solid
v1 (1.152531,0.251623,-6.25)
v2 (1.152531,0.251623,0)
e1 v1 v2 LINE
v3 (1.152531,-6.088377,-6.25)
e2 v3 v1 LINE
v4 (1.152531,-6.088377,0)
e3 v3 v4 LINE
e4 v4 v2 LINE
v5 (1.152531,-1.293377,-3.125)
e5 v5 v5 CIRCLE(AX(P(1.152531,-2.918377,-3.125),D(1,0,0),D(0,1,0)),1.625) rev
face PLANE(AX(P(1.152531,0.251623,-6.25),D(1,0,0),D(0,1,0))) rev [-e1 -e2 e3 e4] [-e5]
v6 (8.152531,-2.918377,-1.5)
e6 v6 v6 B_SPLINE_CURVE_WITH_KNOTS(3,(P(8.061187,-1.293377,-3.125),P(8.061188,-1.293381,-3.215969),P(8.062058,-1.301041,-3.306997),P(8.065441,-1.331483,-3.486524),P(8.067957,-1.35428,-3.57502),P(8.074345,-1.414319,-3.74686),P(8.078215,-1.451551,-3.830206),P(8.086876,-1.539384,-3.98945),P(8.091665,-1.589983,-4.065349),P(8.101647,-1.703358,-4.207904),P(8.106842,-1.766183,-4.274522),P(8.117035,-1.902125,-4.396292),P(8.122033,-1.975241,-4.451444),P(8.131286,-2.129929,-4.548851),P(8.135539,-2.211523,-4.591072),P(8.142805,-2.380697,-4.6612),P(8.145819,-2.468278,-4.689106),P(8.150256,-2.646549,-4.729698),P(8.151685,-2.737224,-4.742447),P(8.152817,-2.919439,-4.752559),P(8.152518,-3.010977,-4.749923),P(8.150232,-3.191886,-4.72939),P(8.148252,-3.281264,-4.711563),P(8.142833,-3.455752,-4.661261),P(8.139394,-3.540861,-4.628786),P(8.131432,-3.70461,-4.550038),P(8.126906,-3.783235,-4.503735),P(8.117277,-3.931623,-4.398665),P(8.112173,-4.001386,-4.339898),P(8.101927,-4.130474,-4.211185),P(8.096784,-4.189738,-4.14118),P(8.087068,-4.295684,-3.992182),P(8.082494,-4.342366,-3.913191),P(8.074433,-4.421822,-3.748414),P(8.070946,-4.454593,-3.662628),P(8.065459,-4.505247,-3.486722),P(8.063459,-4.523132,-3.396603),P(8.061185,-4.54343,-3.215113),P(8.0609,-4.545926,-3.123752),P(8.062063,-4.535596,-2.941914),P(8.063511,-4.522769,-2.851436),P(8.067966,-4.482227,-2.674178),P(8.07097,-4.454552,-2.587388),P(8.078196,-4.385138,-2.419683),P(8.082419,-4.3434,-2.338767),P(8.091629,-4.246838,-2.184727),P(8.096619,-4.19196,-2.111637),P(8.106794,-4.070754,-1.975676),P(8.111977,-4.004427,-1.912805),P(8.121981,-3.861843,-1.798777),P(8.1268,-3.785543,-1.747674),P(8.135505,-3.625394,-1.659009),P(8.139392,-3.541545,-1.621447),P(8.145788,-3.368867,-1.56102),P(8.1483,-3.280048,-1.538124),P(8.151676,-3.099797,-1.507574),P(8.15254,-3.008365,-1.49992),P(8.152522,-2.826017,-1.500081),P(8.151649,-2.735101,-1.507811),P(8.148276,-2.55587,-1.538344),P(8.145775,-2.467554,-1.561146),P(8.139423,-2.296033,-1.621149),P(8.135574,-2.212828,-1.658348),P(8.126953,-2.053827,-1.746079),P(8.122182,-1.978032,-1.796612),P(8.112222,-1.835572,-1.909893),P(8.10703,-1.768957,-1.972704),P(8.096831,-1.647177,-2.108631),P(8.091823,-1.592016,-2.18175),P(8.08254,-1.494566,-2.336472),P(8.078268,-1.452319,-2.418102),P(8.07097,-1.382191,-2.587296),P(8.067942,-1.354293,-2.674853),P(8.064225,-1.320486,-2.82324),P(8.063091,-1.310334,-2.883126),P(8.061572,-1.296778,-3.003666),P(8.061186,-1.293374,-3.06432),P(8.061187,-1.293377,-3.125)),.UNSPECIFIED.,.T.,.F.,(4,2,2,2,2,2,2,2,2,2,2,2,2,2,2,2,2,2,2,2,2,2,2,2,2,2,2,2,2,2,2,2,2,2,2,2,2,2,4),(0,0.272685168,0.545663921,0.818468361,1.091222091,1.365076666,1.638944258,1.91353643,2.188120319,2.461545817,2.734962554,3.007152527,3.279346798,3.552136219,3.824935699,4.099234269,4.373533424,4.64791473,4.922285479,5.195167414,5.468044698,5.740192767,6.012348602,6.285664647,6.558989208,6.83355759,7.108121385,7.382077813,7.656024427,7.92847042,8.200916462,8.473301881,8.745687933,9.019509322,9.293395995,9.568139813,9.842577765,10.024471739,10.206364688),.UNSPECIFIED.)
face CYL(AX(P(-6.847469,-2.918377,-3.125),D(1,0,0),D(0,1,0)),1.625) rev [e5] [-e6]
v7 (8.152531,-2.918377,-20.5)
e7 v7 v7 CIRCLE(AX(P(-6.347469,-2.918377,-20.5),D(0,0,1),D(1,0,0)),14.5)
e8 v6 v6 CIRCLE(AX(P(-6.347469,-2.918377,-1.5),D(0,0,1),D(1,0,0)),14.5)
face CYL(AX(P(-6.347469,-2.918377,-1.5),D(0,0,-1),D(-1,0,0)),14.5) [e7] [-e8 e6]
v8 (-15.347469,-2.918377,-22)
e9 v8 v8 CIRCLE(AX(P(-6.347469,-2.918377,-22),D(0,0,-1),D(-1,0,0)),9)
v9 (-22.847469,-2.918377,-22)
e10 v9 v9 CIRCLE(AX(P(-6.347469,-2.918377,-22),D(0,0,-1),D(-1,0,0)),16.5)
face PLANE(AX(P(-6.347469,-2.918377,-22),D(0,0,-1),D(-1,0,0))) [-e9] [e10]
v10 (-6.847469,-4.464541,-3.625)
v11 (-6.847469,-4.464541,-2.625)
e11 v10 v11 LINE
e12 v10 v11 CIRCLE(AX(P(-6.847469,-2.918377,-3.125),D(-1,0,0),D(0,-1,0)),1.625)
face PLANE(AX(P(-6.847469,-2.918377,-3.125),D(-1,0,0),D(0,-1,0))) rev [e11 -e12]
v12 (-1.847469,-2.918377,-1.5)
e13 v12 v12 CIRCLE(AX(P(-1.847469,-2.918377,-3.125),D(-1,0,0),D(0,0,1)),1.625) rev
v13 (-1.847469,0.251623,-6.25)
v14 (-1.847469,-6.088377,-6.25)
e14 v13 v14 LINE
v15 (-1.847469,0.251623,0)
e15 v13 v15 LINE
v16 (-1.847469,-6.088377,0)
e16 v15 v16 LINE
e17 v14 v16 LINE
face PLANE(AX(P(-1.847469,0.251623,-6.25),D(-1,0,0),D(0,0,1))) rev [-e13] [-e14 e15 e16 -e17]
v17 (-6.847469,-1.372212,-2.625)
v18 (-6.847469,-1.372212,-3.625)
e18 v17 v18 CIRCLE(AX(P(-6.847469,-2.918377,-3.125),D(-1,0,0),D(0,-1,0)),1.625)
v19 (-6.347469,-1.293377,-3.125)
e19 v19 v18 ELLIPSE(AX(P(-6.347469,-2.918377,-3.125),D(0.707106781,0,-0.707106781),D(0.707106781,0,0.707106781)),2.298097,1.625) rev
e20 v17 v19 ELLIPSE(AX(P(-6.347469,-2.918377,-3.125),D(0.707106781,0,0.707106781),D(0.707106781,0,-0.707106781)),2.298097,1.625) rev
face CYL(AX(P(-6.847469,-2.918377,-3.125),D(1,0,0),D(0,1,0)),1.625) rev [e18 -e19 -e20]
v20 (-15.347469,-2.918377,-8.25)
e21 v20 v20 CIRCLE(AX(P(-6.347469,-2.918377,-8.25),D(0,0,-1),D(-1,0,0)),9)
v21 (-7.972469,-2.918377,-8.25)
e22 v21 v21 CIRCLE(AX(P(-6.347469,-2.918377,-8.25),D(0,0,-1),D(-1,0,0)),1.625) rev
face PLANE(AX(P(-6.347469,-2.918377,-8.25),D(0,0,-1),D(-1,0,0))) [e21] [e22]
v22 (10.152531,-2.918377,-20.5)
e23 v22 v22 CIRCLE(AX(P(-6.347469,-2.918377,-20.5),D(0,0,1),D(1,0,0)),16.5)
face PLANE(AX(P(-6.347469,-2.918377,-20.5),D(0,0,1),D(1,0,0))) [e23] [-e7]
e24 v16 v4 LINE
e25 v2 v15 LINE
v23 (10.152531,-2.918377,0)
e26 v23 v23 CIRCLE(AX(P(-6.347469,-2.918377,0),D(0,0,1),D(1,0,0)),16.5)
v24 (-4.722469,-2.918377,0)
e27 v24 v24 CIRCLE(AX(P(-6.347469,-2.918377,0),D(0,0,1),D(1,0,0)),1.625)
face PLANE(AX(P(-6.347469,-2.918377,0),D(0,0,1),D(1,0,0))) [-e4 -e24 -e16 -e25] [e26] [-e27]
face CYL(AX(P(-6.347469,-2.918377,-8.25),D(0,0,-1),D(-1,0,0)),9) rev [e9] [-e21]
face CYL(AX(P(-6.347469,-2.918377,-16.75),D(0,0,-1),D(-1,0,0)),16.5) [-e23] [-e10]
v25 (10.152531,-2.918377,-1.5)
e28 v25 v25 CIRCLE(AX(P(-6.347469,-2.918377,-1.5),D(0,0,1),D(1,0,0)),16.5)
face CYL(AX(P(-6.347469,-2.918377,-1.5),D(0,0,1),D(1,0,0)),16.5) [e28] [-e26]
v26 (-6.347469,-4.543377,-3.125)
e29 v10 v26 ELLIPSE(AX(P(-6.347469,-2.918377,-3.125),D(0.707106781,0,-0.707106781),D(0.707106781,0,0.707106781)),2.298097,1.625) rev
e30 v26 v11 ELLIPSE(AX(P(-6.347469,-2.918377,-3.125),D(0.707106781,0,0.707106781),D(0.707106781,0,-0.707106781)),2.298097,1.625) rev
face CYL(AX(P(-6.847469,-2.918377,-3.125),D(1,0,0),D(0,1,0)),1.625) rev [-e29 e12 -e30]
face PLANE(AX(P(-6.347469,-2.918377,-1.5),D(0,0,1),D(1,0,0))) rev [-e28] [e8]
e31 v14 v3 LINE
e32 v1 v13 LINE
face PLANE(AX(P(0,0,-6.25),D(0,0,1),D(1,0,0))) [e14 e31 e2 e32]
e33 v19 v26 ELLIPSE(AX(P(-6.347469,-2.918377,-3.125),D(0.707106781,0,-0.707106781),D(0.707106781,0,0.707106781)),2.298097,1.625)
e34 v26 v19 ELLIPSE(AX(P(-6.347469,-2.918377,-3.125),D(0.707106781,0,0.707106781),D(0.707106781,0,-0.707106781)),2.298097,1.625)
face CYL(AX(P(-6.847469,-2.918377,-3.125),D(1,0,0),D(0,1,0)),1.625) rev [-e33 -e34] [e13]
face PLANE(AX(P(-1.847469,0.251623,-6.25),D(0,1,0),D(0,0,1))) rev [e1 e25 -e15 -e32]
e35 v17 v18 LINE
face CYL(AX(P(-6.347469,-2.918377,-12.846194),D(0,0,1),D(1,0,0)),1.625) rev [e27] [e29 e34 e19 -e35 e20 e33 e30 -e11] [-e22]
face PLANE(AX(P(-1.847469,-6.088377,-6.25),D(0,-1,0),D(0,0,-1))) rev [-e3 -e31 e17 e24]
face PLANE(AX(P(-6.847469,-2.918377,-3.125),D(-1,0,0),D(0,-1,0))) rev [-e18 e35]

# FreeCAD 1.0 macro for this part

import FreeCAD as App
import Part
import Sketcher
Q = App.Units.Quantity

doc = App.newDocument("Part")
body = doc.addObject("PartDesign::Body", "Body")

sketch1 = body.newObject("Sketcher::SketchObject", "Sketch")
sketch1.AttachmentSupport = (doc.getObject("XY_Plane"), [""])
sketch1.MapMode = "FlatFace"
sketch1.addGeometry([
    Part.Circle(App.Vector(-6.347469, -2.918377, 0), App.Vector(0, 0, 1), 15.5),
    Part.Circle(App.Vector(-6.347469, -2.918377, 0), App.Vector(0, 0, 1), 1.5),
], False)
sketch1.addConstraint([
    Sketcher.Constraint("Coincident", 1, 3, 0, 3),
    Sketcher.Constraint("Diameter", 0, Q("31 mm")),
    Sketcher.Constraint("Diameter", 1, Q("3 mm")),
    Sketcher.Constraint("DistanceX", 0, 3, -1, 1, Q("6.347469 mm")),
    Sketcher.Constraint("DistanceY", 0, 3, -1, 1, Q("2.918377 mm")),
])
pad1 = body.newObject("PartDesign::Pad", "Pad")
pad1.Profile = sketch1
pad1.Length = 18.25
pad1.Reversed = True

sketch2 = body.newObject("Sketcher::SketchObject", "Sketch001")
sketch2.AttachmentSupport = (doc.getObject("XY_Plane"), [""])
sketch2.MapMode = "FlatFace"
sketch2.AttachmentOffset = App.Placement(App.Vector(0, 0, -18.25), App.Rotation())
sketch2.addGeometry(Part.Circle(App.Vector(-6.347469, -2.918377, 0), App.Vector(0, 0, 1), 9), False)
sketch2.addConstraint([
    Sketcher.Constraint("Diameter", 0, Q("18 mm")),
    Sketcher.Constraint("DistanceX", 0, 3, -1, 1, Q("6.347469 mm")),
    Sketcher.Constraint("DistanceY", 0, 3, -1, 1, Q("2.918377 mm")),
])
pocket1 = body.newObject("PartDesign::Pocket", "Pocket")
pocket1.Profile = sketch2
pocket1.Length = 10
pocket1.Reversed = True

sketch3 = body.newObject("Sketcher::SketchObject", "Sketch002")
sketch3.AttachmentSupport = (doc.getObject("XY_Plane"), [""])
sketch3.MapMode = "FlatFace"
sketch3.addGeometry([
    Part.Circle(App.Vector(-6.347469, -2.918377, 0), App.Vector(0, 0, 1), 16.5),
    Part.Circle(App.Vector(-6.347469, -2.918377, 0), App.Vector(0, 0, 1), 15.5),
], False)
sketch3.addConstraint([
    Sketcher.Constraint("Coincident", 1, 3, 0, 3),
    Sketcher.Constraint("Diameter", 0, Q("33 mm")),
    Sketcher.Constraint("Diameter", 1, Q("31 mm")),
    Sketcher.Constraint("DistanceX", 0, 3, -1, 1, Q("6.347469 mm")),
    Sketcher.Constraint("DistanceY", 0, 3, -1, 1, Q("2.918377 mm")),
])
pad2 = body.newObject("PartDesign::Pad", "Pad001")
pad2.Profile = sketch3
pad2.Length = 1.5
pad2.Reversed = True

sketch4 = body.newObject("Sketcher::SketchObject", "Sketch003")
sketch4.AttachmentSupport = (doc.getObject("XY_Plane"), [""])
sketch4.MapMode = "FlatFace"
sketch4.AttachmentOffset = App.Placement(App.Vector(0, 0, -16.75), App.Rotation())
sketch4.addGeometry([
    Part.Circle(App.Vector(-6.347469, -2.918377, 0), App.Vector(0, 0, 1), 16.5),
    Part.Circle(App.Vector(-6.347469, -2.918377, 0), App.Vector(0, 0, 1), 15.5),
], False)
sketch4.addConstraint([
    Sketcher.Constraint("Coincident", 1, 3, 0, 3),
    Sketcher.Constraint("Diameter", 0, Q("33 mm")),
    Sketcher.Constraint("Diameter", 1, Q("31 mm")),
    Sketcher.Constraint("DistanceX", 0, 3, -1, 1, Q("6.347469 mm")),
    Sketcher.Constraint("DistanceY", 0, 3, -1, 1, Q("2.918377 mm")),
])
pad3 = body.newObject("PartDesign::Pad", "Pad002")
pad3.Profile = sketch4
pad3.Length = 1.5
pad3.Reversed = True

sketch5 = body.newObject("Sketcher::SketchObject", "Sketch004")
sketch5.AttachmentSupport = (doc.getObject("XY_Plane"), [""])
sketch5.MapMode = "FlatFace"
sketch5.addGeometry([
    Part.LineSegment(App.Vector(-1.847469, 0.251623, 0), App.Vector(-1.847469, -6.088377, 0)),
    Part.LineSegment(App.Vector(-1.847469, -6.088377, 0), App.Vector(1.152531, -6.088377, 0)),
    Part.LineSegment(App.Vector(1.152531, -6.088377, 0), App.Vector(1.152531, 0.251623, 0)),
    Part.LineSegment(App.Vector(1.152531, 0.251623, 0), App.Vector(-1.847469, 0.251623, 0)),
], False)
sketch5.addConstraint([
    Sketcher.Constraint("Coincident", 0, 2, 1, 1),
    Sketcher.Constraint("Coincident", 1, 2, 2, 1),
    Sketcher.Constraint("Coincident", 2, 2, 3, 1),
    Sketcher.Constraint("Coincident", 3, 2, 0, 1),
    Sketcher.Constraint("Vertical", 0),
    Sketcher.Constraint("Horizontal", 1),
    Sketcher.Constraint("Vertical", 2),
    Sketcher.Constraint("Horizontal", 3),
    Sketcher.Constraint("DistanceX", 1, 1, 1, 2, Q("3 mm")),
    Sketcher.Constraint("DistanceY", 0, 2, 0, 1, Q("6.34 mm")),
    Sketcher.Constraint("DistanceX", 0, 2, -1, 1, Q("1.847469 mm")),
    Sketcher.Constraint("DistanceY", 0, 2, -1, 1, Q("6.088377 mm")),
])
pocket2 = body.newObject("PartDesign::Pocket", "Pocket001")
pocket2.Profile = sketch5
pocket2.Length = 6.25

sketch6 = body.newObject("Sketcher::SketchObject", "Sketch005")
sketch6.AttachmentSupport = (doc.getObject("YZ_Plane"), [""])
sketch6.MapMode = "FlatFace"
sketch6.AttachmentOffset = App.Placement(App.Vector(0, 0, 1.152531), App.Rotation())
sketch6.addGeometry(Part.Circle(App.Vector(-2.918377, -3.125, 0), App.Vector(0, 0, 1), 1.625), False)
sketch6.addConstraint([
    Sketcher.Constraint("Diameter", 0, Q("3.25 mm")),
    Sketcher.Constraint("DistanceY", 0, 3, -1, 1, Q("3.125 mm")),
    Sketcher.Constraint("DistanceX", 0, 3, -1, 1, Q("2.918377 mm")),
])
pocket3 = body.newObject("PartDesign::Pocket", "Pocket002")
pocket3.Profile = sketch6
pocket3.Type = "TwoLengths"
pocket3.Length = 8
pocket3.Length2 = 9.75

sketch7 = body.newObject("Sketcher::SketchObject", "Sketch006")
sketch7.AttachmentSupport = (doc.getObject("XY_Plane"), [""])
sketch7.MapMode = "FlatFace"
sketch7.addGeometry(Part.Circle(App.Vector(-6.347469, -2.918377, 0), App.Vector(0, 0, 1), 1.625), False)
sketch7.addConstraint([
    Sketcher.Constraint("Diameter", 0, Q("3.25 mm")),
    Sketcher.Constraint("DistanceX", 0, 3, -1, 1, Q("6.347469 mm")),
    Sketcher.Constraint("DistanceY", 0, 3, -1, 1, Q("2.918377 mm")),
])
pocket4 = body.newObject("PartDesign::Pocket", "Pocket003")
pocket4.Profile = sketch7
pocket4.Length = 8.25

sketch8 = body.newObject("Sketcher::SketchObject", "Sketch007")
sketch8.AttachmentSupport = (doc.getObject("XY_Plane"), [""])
sketch8.MapMode = "FlatFace"
sketch8.AttachmentOffset = App.Placement(App.Vector(0, 0, -1.5), App.Rotation())
sketch8.addGeometry([
    Part.Circle(App.Vector(-6.347469, -2.918377, 0), App.Vector(0, 0, 1), 15.5),
    Part.Circle(App.Vector(-6.347469, -2.918377, 0), App.Vector(0, 0, 1), 14.5),
], False)
sketch8.addConstraint([
    Sketcher.Constraint("Coincident", 1, 3, 0, 3),
    Sketcher.Constraint("Diameter", 0, Q("31 mm")),
    Sketcher.Constraint("Diameter", 1, Q("29 mm")),
    Sketcher.Constraint("DistanceX", 0, 3, -1, 1, Q("6.347469 mm")),
    Sketcher.Constraint("DistanceY", 0, 3, -1, 1, Q("2.918377 mm")),
])
pocket5 = body.newObject("PartDesign::Pocket", "Pocket004")
pocket5.Profile = sketch8
pocket5.Length = 15.25

sketch9 = body.newObject("Sketcher::SketchObject", "Sketch008")
sketch9.AttachmentSupport = (doc.getObject("XY_Plane"), [""])
sketch9.MapMode = "FlatFace"
sketch9.AttachmentOffset = App.Placement(App.Vector(0, 0, -18.25), App.Rotation())
sketch9.addGeometry([
    Part.Circle(App.Vector(-6.347469, -2.918377, 0), App.Vector(0, 0, 1), 16.5),
    Part.Circle(App.Vector(-6.347469, -2.918377, 0), App.Vector(0, 0, 1), 9),
], False)
sketch9.addConstraint([
    Sketcher.Constraint("Coincident", 1, 3, 0, 3),
    Sketcher.Constraint("Diameter", 0, Q("33 mm")),
    Sketcher.Constraint("Diameter", 1, Q("18 mm")),
    Sketcher.Constraint("DistanceX", 0, 3, -1, 1, Q("6.347469 mm")),
    Sketcher.Constraint("DistanceY", 0, 3, -1, 1, Q("2.918377 mm")),
])
pad4 = body.newObject("PartDesign::Pad", "Pad003")
pad4.Profile = sketch9
pad4.Length = 3.75
pad4.Reversed = True

sketch10 = body.newObject("Sketcher::SketchObject", "Sketch009")
sketch10.AttachmentSupport = (doc.getObject("XY_Plane"), [""])
sketch10.MapMode = "FlatFace"
sketch10.AttachmentOffset = App.Placement(App.Vector(0, 0, -16.75), App.Rotation())
sketch10.addGeometry([
    Part.Circle(App.Vector(-6.347469, -2.918377, 0), App.Vector(0, 0, 1), 16.5),
    Part.Circle(App.Vector(-6.347469, -2.918377, 0), App.Vector(0, 0, 1), 14.5),
], False)
sketch10.addConstraint([
    Sketcher.Constraint("Coincident", 1, 3, 0, 3),
    Sketcher.Constraint("Diameter", 0, Q("33 mm")),
    Sketcher.Constraint("Diameter", 1, Q("29 mm")),
    Sketcher.Constraint("DistanceX", 0, 3, -1, 1, Q("6.347469 mm")),
    Sketcher.Constraint("DistanceY", 0, 3, -1, 1, Q("2.918377 mm")),
])
pocket6 = body.newObject("PartDesign::Pocket", "Pocket005")
pocket6.Profile = sketch10
pocket6.Length = 3.75

doc.recompute()
